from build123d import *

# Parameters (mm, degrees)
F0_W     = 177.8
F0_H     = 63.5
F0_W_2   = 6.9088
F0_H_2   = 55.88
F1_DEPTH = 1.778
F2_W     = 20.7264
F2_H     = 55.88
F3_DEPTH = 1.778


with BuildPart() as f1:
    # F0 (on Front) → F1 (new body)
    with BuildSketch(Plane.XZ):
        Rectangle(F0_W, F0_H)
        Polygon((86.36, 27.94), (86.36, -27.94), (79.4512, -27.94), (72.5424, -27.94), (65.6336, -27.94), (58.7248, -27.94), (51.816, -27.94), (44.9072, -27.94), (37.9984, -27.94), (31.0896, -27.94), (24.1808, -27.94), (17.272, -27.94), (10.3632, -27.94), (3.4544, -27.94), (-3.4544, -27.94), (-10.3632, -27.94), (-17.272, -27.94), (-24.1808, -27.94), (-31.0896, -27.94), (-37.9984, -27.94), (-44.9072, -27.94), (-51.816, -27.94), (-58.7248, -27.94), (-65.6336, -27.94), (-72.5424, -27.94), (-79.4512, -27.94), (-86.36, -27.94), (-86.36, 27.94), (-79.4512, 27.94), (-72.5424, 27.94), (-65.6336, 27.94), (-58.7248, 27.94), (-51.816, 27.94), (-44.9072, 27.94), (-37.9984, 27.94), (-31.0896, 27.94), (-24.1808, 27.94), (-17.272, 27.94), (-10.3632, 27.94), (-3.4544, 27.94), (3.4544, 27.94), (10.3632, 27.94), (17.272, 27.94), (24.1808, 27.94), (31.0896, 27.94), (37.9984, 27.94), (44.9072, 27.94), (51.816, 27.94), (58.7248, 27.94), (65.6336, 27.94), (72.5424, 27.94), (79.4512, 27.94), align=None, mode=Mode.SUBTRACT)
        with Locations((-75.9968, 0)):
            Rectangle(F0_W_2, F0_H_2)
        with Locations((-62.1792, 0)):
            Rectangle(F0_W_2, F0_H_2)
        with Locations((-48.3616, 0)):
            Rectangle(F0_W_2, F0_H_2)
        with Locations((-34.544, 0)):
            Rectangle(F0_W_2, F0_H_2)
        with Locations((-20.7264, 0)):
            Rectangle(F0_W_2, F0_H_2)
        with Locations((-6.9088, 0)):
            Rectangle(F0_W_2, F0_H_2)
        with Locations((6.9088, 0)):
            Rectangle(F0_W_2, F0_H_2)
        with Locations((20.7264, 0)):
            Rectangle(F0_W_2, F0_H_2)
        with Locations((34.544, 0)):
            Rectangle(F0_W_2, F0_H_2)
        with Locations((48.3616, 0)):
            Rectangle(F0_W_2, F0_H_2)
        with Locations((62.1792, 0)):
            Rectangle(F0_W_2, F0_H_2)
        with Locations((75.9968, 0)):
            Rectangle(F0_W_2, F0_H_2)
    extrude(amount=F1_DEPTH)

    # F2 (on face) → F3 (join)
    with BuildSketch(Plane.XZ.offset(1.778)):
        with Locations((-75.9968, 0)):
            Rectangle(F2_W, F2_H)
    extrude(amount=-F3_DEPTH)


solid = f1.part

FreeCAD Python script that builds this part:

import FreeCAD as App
import Part
import Sketcher
Q = App.Units.Quantity

doc = App.newDocument("Part")
body = doc.addObject("PartDesign::Body", "Body")

# Sketch on XZ plane
sketch1 = body.newObject("Sketcher::SketchObject", "Sketch")
sketch1.AttachmentSupport = (doc.getObject("XZ_Plane"), [""])
sketch1.MapMode = "FlatFace"
sketch1.addGeometry(Part.LineSegment(App.Vector(-89, 32, 0), App.Vector(-89, -32, 0)), False)
sketch1.addGeometry(Part.LineSegment(App.Vector(-89, -32, 0), App.Vector(89, -32, 0)), False)
sketch1.addGeometry(Part.LineSegment(App.Vector(89, -32, 0), App.Vector(89, 32, 0)), False)
sketch1.addGeometry(Part.LineSegment(App.Vector(89, 32, 0), App.Vector(-89, 32, 0)), False)
sketch1.addGeometry(Part.LineSegment(App.Vector(-86, 28, 0), App.Vector(-79, 28, 0)), False)
sketch1.addGeometry(Part.LineSegment(App.Vector(-79, 28, 0), App.Vector(-79, -28, 0)), False)
sketch1.addGeometry(Part.LineSegment(App.Vector(-79, -28, 0), App.Vector(-86, -28, 0)), False)
sketch1.addGeometry(Part.LineSegment(App.Vector(-86, -28, 0), App.Vector(-86, 28, 0)), False)
sketch1.addGeometry(Part.LineSegment(App.Vector(-73, 28, 0), App.Vector(-66, 28, 0)), False)
sketch1.addGeometry(Part.LineSegment(App.Vector(-66, 28, 0), App.Vector(-66, -28, 0)), False)
sketch1.addGeometry(Part.LineSegment(App.Vector(-66, -28, 0), App.Vector(-73, -28, 0)), False)
sketch1.addGeometry(Part.LineSegment(App.Vector(-73, -28, 0), App.Vector(-73, 28, 0)), False)
sketch1.addGeometry(Part.LineSegment(App.Vector(-59, 28, 0), App.Vector(-52, 28, 0)), False)
sketch1.addGeometry(Part.LineSegment(App.Vector(-52, 28, 0), App.Vector(-52, -28, 0)), False)
sketch1.addGeometry(Part.LineSegment(App.Vector(-52, -28, 0), App.Vector(-59, -28, 0)), False)
sketch1.addGeometry(Part.LineSegment(App.Vector(-59, -28, 0), App.Vector(-59, 28, 0)), False)
sketch1.addGeometry(Part.LineSegment(App.Vector(-45, 28, 0), App.Vector(-38, 28, 0)), False)
sketch1.addGeometry(Part.LineSegment(App.Vector(-38, 28, 0), App.Vector(-38, -28, 0)), False)
sketch1.addGeometry(Part.LineSegment(App.Vector(-38, -28, 0), App.Vector(-45, -28, 0)), False)
sketch1.addGeometry(Part.LineSegment(App.Vector(-45, -28, 0), App.Vector(-45, 28, 0)), False)
sketch1.addGeometry(Part.LineSegment(App.Vector(-31, 28, 0), App.Vector(-24, 28, 0)), False)
sketch1.addGeometry(Part.LineSegment(App.Vector(-24, 28, 0), App.Vector(-24, -28, 0)), False)
sketch1.addGeometry(Part.LineSegment(App.Vector(-24, -28, 0), App.Vector(-31, -28, 0)), False)
sketch1.addGeometry(Part.LineSegment(App.Vector(-31, -28, 0), App.Vector(-31, 28, 0)), False)
sketch1.addGeometry(Part.LineSegment(App.Vector(-17, 28, 0), App.Vector(-10, 28, 0)), False)
sketch1.addGeometry(Part.LineSegment(App.Vector(-10, 28, 0), App.Vector(-10, -28, 0)), False)
sketch1.addGeometry(Part.LineSegment(App.Vector(-10, -28, 0), App.Vector(-17, -28, 0)), False)
sketch1.addGeometry(Part.LineSegment(App.Vector(-17, -28, 0), App.Vector(-17, 28, 0)), False)
sketch1.addGeometry(Part.LineSegment(App.Vector(-3, 28, 0), App.Vector(3, 28, 0)), False)
sketch1.addGeometry(Part.LineSegment(App.Vector(3, 28, 0), App.Vector(3, -28, 0)), False)
sketch1.addGeometry(Part.LineSegment(App.Vector(3, -28, 0), App.Vector(-3, -28, 0)), False)
sketch1.addGeometry(Part.LineSegment(App.Vector(-3, -28, 0), App.Vector(-3, 28, 0)), False)
sketch1.addGeometry(Part.LineSegment(App.Vector(10, 28, 0), App.Vector(17, 28, 0)), False)
sketch1.addGeometry(Part.LineSegment(App.Vector(17, 28, 0), App.Vector(17, -28, 0)), False)
sketch1.addGeometry(Part.LineSegment(App.Vector(17, -28, 0), App.Vector(10, -28, 0)), False)
sketch1.addGeometry(Part.LineSegment(App.Vector(10, -28, 0), App.Vector(10, 28, 0)), False)
sketch1.addGeometry(Part.LineSegment(App.Vector(24, 28, 0), App.Vector(31, 28, 0)), False)
sketch1.addGeometry(Part.LineSegment(App.Vector(31, 28, 0), App.Vector(31, -28, 0)), False)
sketch1.addGeometry(Part.LineSegment(App.Vector(31, -28, 0), App.Vector(24, -28, 0)), False)
sketch1.addGeometry(Part.LineSegment(App.Vector(24, -28, 0), App.Vector(24, 28, 0)), False)
sketch1.addGeometry(Part.LineSegment(App.Vector(38, 28, 0), App.Vector(45, 28, 0)), False)
sketch1.addGeometry(Part.LineSegment(App.Vector(45, 28, 0), App.Vector(45, -28, 0)), False)
sketch1.addGeometry(Part.LineSegment(App.Vector(45, -28, 0), App.Vector(38, -28, 0)), False)
sketch1.addGeometry(Part.LineSegment(App.Vector(38, -28, 0), App.Vector(38, 28, 0)), False)
sketch1.addGeometry(Part.LineSegment(App.Vector(52, 28, 0), App.Vector(59, 28, 0)), False)
sketch1.addGeometry(Part.LineSegment(App.Vector(59, 28, 0), App.Vector(59, -28, 0)), False)
sketch1.addGeometry(Part.LineSegment(App.Vector(59, -28, 0), App.Vector(52, -28, 0)), False)
sketch1.addGeometry(Part.LineSegment(App.Vector(52, -28, 0), App.Vector(52, 28, 0)), False)
sketch1.addGeometry(Part.LineSegment(App.Vector(66, 28, 0), App.Vector(73, 28, 0)), False)
sketch1.addGeometry(Part.LineSegment(App.Vector(73, 28, 0), App.Vector(73, -28, 0)), False)
sketch1.addGeometry(Part.LineSegment(App.Vector(73, -28, 0), App.Vector(66, -28, 0)), False)
sketch1.addGeometry(Part.LineSegment(App.Vector(66, -28, 0), App.Vector(66, 28, 0)), False)
sketch1.addGeometry(Part.LineSegment(App.Vector(79, 28, 0), App.Vector(86, 28, 0)), False)
sketch1.addGeometry(Part.LineSegment(App.Vector(86, 28, 0), App.Vector(86, -28, 0)), False)
sketch1.addGeometry(Part.LineSegment(App.Vector(86, -28, 0), App.Vector(79, -28, 0)), False)
sketch1.addGeometry(Part.LineSegment(App.Vector(79, -28, 0), App.Vector(79, 28, 0)), False)
sketch1.addConstraint(Sketcher.Constraint("Coincident", 0, 2, 1, 1))
sketch1.addConstraint(Sketcher.Constraint("Coincident", 1, 2, 2, 1))
sketch1.addConstraint(Sketcher.Constraint("Coincident", 2, 2, 3, 1))
sketch1.addConstraint(Sketcher.Constraint("Coincident", 3, 2, 0, 1))
sketch1.addConstraint(Sketcher.Constraint("Coincident", 4, 2, 5, 1))
sketch1.addConstraint(Sketcher.Constraint("Coincident", 5, 2, 6, 1))
sketch1.addConstraint(Sketcher.Constraint("Coincident", 6, 2, 7, 1))
sketch1.addConstraint(Sketcher.Constraint("Coincident", 7, 2, 4, 1))
sketch1.addConstraint(Sketcher.Constraint("Coincident", 8, 2, 9, 1))
sketch1.addConstraint(Sketcher.Constraint("Coincident", 9, 2, 10, 1))
sketch1.addConstraint(Sketcher.Constraint("Coincident", 10, 2, 11, 1))
sketch1.addConstraint(Sketcher.Constraint("Coincident", 11, 2, 8, 1))
sketch1.addConstraint(Sketcher.Constraint("Coincident", 12, 2, 13, 1))
sketch1.addConstraint(Sketcher.Constraint("Coincident", 13, 2, 14, 1))
sketch1.addConstraint(Sketcher.Constraint("Coincident", 14, 2, 15, 1))
sketch1.addConstraint(Sketcher.Constraint("Coincident", 15, 2, 12, 1))
sketch1.addConstraint(Sketcher.Constraint("Coincident", 16, 2, 17, 1))
sketch1.addConstraint(Sketcher.Constraint("Coincident", 17, 2, 18, 1))
sketch1.addConstraint(Sketcher.Constraint("Coincident", 18, 2, 19, 1))
sketch1.addConstraint(Sketcher.Constraint("Coincident", 19, 2, 16, 1))
sketch1.addConstraint(Sketcher.Constraint("Coincident", 20, 2, 21, 1))
sketch1.addConstraint(Sketcher.Constraint("Coincident", 21, 2, 22, 1))
sketch1.addConstraint(Sketcher.Constraint("Coincident", 22, 2, 23, 1))
sketch1.addConstraint(Sketcher.Constraint("Coincident", 23, 2, 20, 1))
sketch1.addConstraint(Sketcher.Constraint("Coincident", 24, 2, 25, 1))
sketch1.addConstraint(Sketcher.Constraint("Coincident", 25, 2, 26, 1))
sketch1.addConstraint(Sketcher.Constraint("Coincident", 26, 2, 27, 1))
sketch1.addConstraint(Sketcher.Constraint("Coincident", 27, 2, 24, 1))
sketch1.addConstraint(Sketcher.Constraint("Coincident", 28, 2, 29, 1))
sketch1.addConstraint(Sketcher.Constraint("Coincident", 29, 2, 30, 1))
sketch1.addConstraint(Sketcher.Constraint("Coincident", 30, 2, 31, 1))
sketch1.addConstraint(Sketcher.Constraint("Coincident", 31, 2, 28, 1))
sketch1.addConstraint(Sketcher.Constraint("Coincident", 32, 2, 33, 1))
sketch1.addConstraint(Sketcher.Constraint("Coincident", 33, 2, 34, 1))
sketch1.addConstraint(Sketcher.Constraint("Coincident", 34, 2, 35, 1))
sketch1.addConstraint(Sketcher.Constraint("Coincident", 35, 2, 32, 1))
sketch1.addConstraint(Sketcher.Constraint("Coincident", 36, 2, 37, 1))
sketch1.addConstraint(Sketcher.Constraint("Coincident", 37, 2, 38, 1))
sketch1.addConstraint(Sketcher.Constraint("Coincident", 38, 2, 39, 1))
sketch1.addConstraint(Sketcher.Constraint("Coincident", 39, 2, 36, 1))
sketch1.addConstraint(Sketcher.Constraint("Coincident", 40, 2, 41, 1))
sketch1.addConstraint(Sketcher.Constraint("Coincident", 41, 2, 42, 1))
sketch1.addConstraint(Sketcher.Constraint("Coincident", 42, 2, 43, 1))
sketch1.addConstraint(Sketcher.Constraint("Coincident", 43, 2, 40, 1))
sketch1.addConstraint(Sketcher.Constraint("Coincident", 44, 2, 45, 1))
sketch1.addConstraint(Sketcher.Constraint("Coincident", 45, 2, 46, 1))
sketch1.addConstraint(Sketcher.Constraint("Coincident", 46, 2, 47, 1))
sketch1.addConstraint(Sketcher.Constraint("Coincident", 47, 2, 44, 1))
sketch1.addConstraint(Sketcher.Constraint("Coincident", 48, 2, 49, 1))
sketch1.addConstraint(Sketcher.Constraint("Coincident", 49, 2, 50, 1))
sketch1.addConstraint(Sketcher.Constraint("Coincident", 50, 2, 51, 1))
sketch1.addConstraint(Sketcher.Constraint("Coincident", 51, 2, 48, 1))
sketch1.addConstraint(Sketcher.Constraint("Coincident", 52, 2, 53, 1))
sketch1.addConstraint(Sketcher.Constraint("Coincident", 53, 2, 54, 1))
sketch1.addConstraint(Sketcher.Constraint("Coincident", 54, 2, 55, 1))
sketch1.addConstraint(Sketcher.Constraint("Coincident", 55, 2, 52, 1))
sketch1.addConstraint(Sketcher.Constraint("Vertical", 0))
sketch1.addConstraint(Sketcher.Constraint("Horizontal", 1))
sketch1.addConstraint(Sketcher.Constraint("Vertical", 2))
sketch1.addConstraint(Sketcher.Constraint("Horizontal", 3))
sketch1.addConstraint(Sketcher.Constraint("Horizontal", 4))
sketch1.addConstraint(Sketcher.Constraint("Vertical", 5))
sketch1.addConstraint(Sketcher.Constraint("Horizontal", 6))
sketch1.addConstraint(Sketcher.Constraint("Vertical", 7))
sketch1.addConstraint(Sketcher.Constraint("Horizontal", 8))
sketch1.addConstraint(Sketcher.Constraint("Vertical", 9))
sketch1.addConstraint(Sketcher.Constraint("Horizontal", 10))
sketch1.addConstraint(Sketcher.Constraint("Vertical", 11))
sketch1.addConstraint(Sketcher.Constraint("Horizontal", 12))
sketch1.addConstraint(Sketcher.Constraint("Vertical", 13))
sketch1.addConstraint(Sketcher.Constraint("Horizontal", 14))
sketch1.addConstraint(Sketcher.Constraint("Vertical", 15))
sketch1.addConstraint(Sketcher.Constraint("Horizontal", 16))
sketch1.addConstraint(Sketcher.Constraint("Vertical", 17))
sketch1.addConstraint(Sketcher.Constraint("Horizontal", 18))
sketch1.addConstraint(Sketcher.Constraint("Vertical", 19))
sketch1.addConstraint(Sketcher.Constraint("Horizontal", 20))
sketch1.addConstraint(Sketcher.Constraint("Vertical", 21))
sketch1.addConstraint(Sketcher.Constraint("Horizontal", 22))
sketch1.addConstraint(Sketcher.Constraint("Vertical", 23))
sketch1.addConstraint(Sketcher.Constraint("Horizontal", 24))
sketch1.addConstraint(Sketcher.Constraint("Vertical", 25))
sketch1.addConstraint(Sketcher.Constraint("Horizontal", 26))
sketch1.addConstraint(Sketcher.Constraint("Vertical", 27))
sketch1.addConstraint(Sketcher.Constraint("Horizontal", 28))
sketch1.addConstraint(Sketcher.Constraint("Vertical", 29))
sketch1.addConstraint(Sketcher.Constraint("Horizontal", 30))
sketch1.addConstraint(Sketcher.Constraint("Vertical", 31))
sketch1.addConstraint(Sketcher.Constraint("Horizontal", 32))
sketch1.addConstraint(Sketcher.Constraint("Vertical", 33))
sketch1.addConstraint(Sketcher.Constraint("Horizontal", 34))
sketch1.addConstraint(Sketcher.Constraint("Vertical", 35))
sketch1.addConstraint(Sketcher.Constraint("Horizontal", 36))
sketch1.addConstraint(Sketcher.Constraint("Vertical", 37))
sketch1.addConstraint(Sketcher.Constraint("Horizontal", 38))
sketch1.addConstraint(Sketcher.Constraint("Vertical", 39))
sketch1.addConstraint(Sketcher.Constraint("Horizontal", 40))
sketch1.addConstraint(Sketcher.Constraint("Vertical", 41))
sketch1.addConstraint(Sketcher.Constraint("Horizontal", 42))
sketch1.addConstraint(Sketcher.Constraint("Vertical", 43))
sketch1.addConstraint(Sketcher.Constraint("Horizontal", 44))
sketch1.addConstraint(Sketcher.Constraint("Vertical", 45))
sketch1.addConstraint(Sketcher.Constraint("Horizontal", 46))
sketch1.addConstraint(Sketcher.Constraint("Vertical", 47))
sketch1.addConstraint(Sketcher.Constraint("Horizontal", 48))
sketch1.addConstraint(Sketcher.Constraint("Vertical", 49))
sketch1.addConstraint(Sketcher.Constraint("Horizontal", 50))
sketch1.addConstraint(Sketcher.Constraint("Vertical", 51))
sketch1.addConstraint(Sketcher.Constraint("Horizontal", 52))
sketch1.addConstraint(Sketcher.Constraint("Vertical", 53))
sketch1.addConstraint(Sketcher.Constraint("Horizontal", 54))
sketch1.addConstraint(Sketcher.Constraint("Vertical", 55))
sketch1.addConstraint(Sketcher.Constraint("Symmetric", 0, 2, 2, 2, -1, 1))
sketch1.addConstraint(Sketcher.Constraint("Symmetric", 28, 2, 30, 2, -1, 1))
sketch1.addConstraint(Sketcher.Constraint("Symmetric", 26, 2, 32, 2, -1, 1))
sketch1.addConstraint(Sketcher.Constraint("Symmetric", 24, 2, 34, 2, -1, 1))
sketch1.addConstraint(Sketcher.Constraint("Symmetric", 22, 2, 36, 2, -1, 1))
sketch1.addConstraint(Sketcher.Constraint("Symmetric", 20, 2, 38, 2, -1, 1))
sketch1.addConstraint(Sketcher.Constraint("Symmetric", 18, 2, 40, 2, -1, 1))
sketch1.addConstraint(Sketcher.Constraint("Symmetric", 16, 2, 42, 2, -1, 1))
sketch1.addConstraint(Sketcher.Constraint("Symmetric", 14, 2, 44, 2, -1, 1))
sketch1.addConstraint(Sketcher.Constraint("Symmetric", 12, 2, 46, 2, -1, 1))
sketch1.addConstraint(Sketcher.Constraint("Symmetric", 10, 2, 48, 2, -1, 1))
sketch1.addConstraint(Sketcher.Constraint("Symmetric", 8, 2, 50, 2, -1, 1))
sketch1.addConstraint(Sketcher.Constraint("Symmetric", 6, 2, 52, 2, -1, 1))
sketch1.addConstraint(Sketcher.Constraint("Symmetric", 4, 2, 54, 2, -1, 1))
sketch1.addConstraint(Sketcher.Constraint("Horizontal", 7, 2, 8, 2))
sketch1.addConstraint(Sketcher.Constraint("Horizontal", 6, 2, 9, 2))
sketch1.addConstraint(Sketcher.Constraint("Horizontal", 11, 2, 12, 2))
sketch1.addConstraint(Sketcher.Constraint("Horizontal", 10, 2, 13, 2))
sketch1.addConstraint(Sketcher.Constraint("Horizontal", 15, 2, 16, 2))
sketch1.addConstraint(Sketcher.Constraint("Horizontal", 14, 2, 17, 2))
sketch1.addConstraint(Sketcher.Constraint("Horizontal", 19, 2, 20, 2))
sketch1.addConstraint(Sketcher.Constraint("Horizontal", 18, 2, 21, 2))
sketch1.addConstraint(Sketcher.Constraint("Horizontal", 23, 2, 24, 2))
sketch1.addConstraint(Sketcher.Constraint("Horizontal", 22, 2, 25, 2))
sketch1.addConstraint(Sketcher.Constraint("Horizontal", 27, 2, 28, 2))
sketch1.addConstraint(Sketcher.Constraint("Horizontal", 26, 2, 29, 2))
sketch1.addConstraint(Sketcher.Constraint("Equal", 6, 8))
sketch1.addConstraint(Sketcher.Constraint("Equal", 10, 12))
sketch1.addConstraint(Sketcher.Constraint("Equal", 14, 16))
sketch1.addConstraint(Sketcher.Constraint("Equal", 18, 20))
sketch1.addConstraint(Sketcher.Constraint("Equal", 22, 24))
sketch1.addConstraint(Sketcher.Constraint("Equal", 26, 28))
sketch1.addConstraint(Sketcher.Constraint("DistanceX", 1, 1, 1, 2, Q("7 in")))
sketch1.addConstraint(Sketcher.Constraint("DistanceY", 0, 2, 0, 1, Q("2.5 in")))
sketch1.addConstraint(Sketcher.Constraint("DistanceY", 5, 2, 5, 1, Q("2.2 in")))
sketch1.addConstraint(Sketcher.Constraint("DistanceX", 6, 2, -1, 1, Q("3.4 in")))
sketch1.addConstraint(Sketcher.Constraint("DistanceX", 4, 1, 4, 2, Q("0.272 in")))
sketch1.addConstraint(Sketcher.Constraint("DistanceX", 12, 2, -1, 1, Q("2.04 in")))
sketch1.addConstraint(Sketcher.Constraint("DistanceX", 26, 2, -1, 1, Q("0.68 in")))
sketch1.addConstraint(Sketcher.Constraint("DistanceX", 11, 2, 16, 2, Q("1.36 in")))
sketch1.addConstraint(Sketcher.Constraint("DistanceX", 15, 2, 20, 2, Q("1.36 in")))
sketch1.addConstraint(Sketcher.Constraint("DistanceX", 19, 2, 24, 2, Q("1.36 in")))
pad1 = body.newObject("PartDesign::Pad", "Pad")
pad1.Profile = sketch1
pad1.Length = Q("0.07 in")

# Sketch on XZ plane
sketch2 = body.newObject("Sketcher::SketchObject", "Sketch001")
sketch2.AttachmentSupport = (doc.getObject("XZ_Plane"), [""])
sketch2.MapMode = "FlatFace"
sketch2.AttachmentOffset = App.Placement(App.Vector(0, 0, 0.07 * 25.4), App.Rotation())
sketch2.addGeometry(Part.LineSegment(App.Vector(-86, 28, 0), App.Vector(-86, -28, 0)), False)
sketch2.addGeometry(Part.LineSegment(App.Vector(-86, -28, 0), App.Vector(-66, -28, 0)), False)
sketch2.addGeometry(Part.LineSegment(App.Vector(-66, -28, 0), App.Vector(-66, 28, 0)), False)
sketch2.addGeometry(Part.LineSegment(App.Vector(-66, 28, 0), App.Vector(-86, 28, 0)), False)
sketch2.addConstraint(Sketcher.Constraint("Coincident", 0, 2, 1, 1))
sketch2.addConstraint(Sketcher.Constraint("Coincident", 1, 2, 2, 1))
sketch2.addConstraint(Sketcher.Constraint("Coincident", 2, 2, 3, 1))
sketch2.addConstraint(Sketcher.Constraint("Coincident", 3, 2, 0, 1))
sketch2.addConstraint(Sketcher.Constraint("Vertical", 0))
sketch2.addConstraint(Sketcher.Constraint("Horizontal", 1))
sketch2.addConstraint(Sketcher.Constraint("Vertical", 2))
sketch2.addConstraint(Sketcher.Constraint("Horizontal", 3))
sketch2.addConstraint(Sketcher.Constraint("DistanceY", 0, 2, 0, 1, Q("2.2 in")))
sketch2.addConstraint(Sketcher.Constraint("DistanceX", 0, 2, -1, 1, Q("3.4 in")))
sketch2.addConstraint(Sketcher.Constraint("DistanceY", 0, 2, -1, 1, Q("1.1 in")))
sketch2.addConstraint(Sketcher.Constraint("DistanceX", 1, 1, 1, 2, Q("0.816 in")))
pad2 = body.newObject("PartDesign::Pad", "Pad001")
pad2.Profile = sketch2
pad2.Length = Q("0.07 in")
pad2.Reversed = True

doc.recompute()
